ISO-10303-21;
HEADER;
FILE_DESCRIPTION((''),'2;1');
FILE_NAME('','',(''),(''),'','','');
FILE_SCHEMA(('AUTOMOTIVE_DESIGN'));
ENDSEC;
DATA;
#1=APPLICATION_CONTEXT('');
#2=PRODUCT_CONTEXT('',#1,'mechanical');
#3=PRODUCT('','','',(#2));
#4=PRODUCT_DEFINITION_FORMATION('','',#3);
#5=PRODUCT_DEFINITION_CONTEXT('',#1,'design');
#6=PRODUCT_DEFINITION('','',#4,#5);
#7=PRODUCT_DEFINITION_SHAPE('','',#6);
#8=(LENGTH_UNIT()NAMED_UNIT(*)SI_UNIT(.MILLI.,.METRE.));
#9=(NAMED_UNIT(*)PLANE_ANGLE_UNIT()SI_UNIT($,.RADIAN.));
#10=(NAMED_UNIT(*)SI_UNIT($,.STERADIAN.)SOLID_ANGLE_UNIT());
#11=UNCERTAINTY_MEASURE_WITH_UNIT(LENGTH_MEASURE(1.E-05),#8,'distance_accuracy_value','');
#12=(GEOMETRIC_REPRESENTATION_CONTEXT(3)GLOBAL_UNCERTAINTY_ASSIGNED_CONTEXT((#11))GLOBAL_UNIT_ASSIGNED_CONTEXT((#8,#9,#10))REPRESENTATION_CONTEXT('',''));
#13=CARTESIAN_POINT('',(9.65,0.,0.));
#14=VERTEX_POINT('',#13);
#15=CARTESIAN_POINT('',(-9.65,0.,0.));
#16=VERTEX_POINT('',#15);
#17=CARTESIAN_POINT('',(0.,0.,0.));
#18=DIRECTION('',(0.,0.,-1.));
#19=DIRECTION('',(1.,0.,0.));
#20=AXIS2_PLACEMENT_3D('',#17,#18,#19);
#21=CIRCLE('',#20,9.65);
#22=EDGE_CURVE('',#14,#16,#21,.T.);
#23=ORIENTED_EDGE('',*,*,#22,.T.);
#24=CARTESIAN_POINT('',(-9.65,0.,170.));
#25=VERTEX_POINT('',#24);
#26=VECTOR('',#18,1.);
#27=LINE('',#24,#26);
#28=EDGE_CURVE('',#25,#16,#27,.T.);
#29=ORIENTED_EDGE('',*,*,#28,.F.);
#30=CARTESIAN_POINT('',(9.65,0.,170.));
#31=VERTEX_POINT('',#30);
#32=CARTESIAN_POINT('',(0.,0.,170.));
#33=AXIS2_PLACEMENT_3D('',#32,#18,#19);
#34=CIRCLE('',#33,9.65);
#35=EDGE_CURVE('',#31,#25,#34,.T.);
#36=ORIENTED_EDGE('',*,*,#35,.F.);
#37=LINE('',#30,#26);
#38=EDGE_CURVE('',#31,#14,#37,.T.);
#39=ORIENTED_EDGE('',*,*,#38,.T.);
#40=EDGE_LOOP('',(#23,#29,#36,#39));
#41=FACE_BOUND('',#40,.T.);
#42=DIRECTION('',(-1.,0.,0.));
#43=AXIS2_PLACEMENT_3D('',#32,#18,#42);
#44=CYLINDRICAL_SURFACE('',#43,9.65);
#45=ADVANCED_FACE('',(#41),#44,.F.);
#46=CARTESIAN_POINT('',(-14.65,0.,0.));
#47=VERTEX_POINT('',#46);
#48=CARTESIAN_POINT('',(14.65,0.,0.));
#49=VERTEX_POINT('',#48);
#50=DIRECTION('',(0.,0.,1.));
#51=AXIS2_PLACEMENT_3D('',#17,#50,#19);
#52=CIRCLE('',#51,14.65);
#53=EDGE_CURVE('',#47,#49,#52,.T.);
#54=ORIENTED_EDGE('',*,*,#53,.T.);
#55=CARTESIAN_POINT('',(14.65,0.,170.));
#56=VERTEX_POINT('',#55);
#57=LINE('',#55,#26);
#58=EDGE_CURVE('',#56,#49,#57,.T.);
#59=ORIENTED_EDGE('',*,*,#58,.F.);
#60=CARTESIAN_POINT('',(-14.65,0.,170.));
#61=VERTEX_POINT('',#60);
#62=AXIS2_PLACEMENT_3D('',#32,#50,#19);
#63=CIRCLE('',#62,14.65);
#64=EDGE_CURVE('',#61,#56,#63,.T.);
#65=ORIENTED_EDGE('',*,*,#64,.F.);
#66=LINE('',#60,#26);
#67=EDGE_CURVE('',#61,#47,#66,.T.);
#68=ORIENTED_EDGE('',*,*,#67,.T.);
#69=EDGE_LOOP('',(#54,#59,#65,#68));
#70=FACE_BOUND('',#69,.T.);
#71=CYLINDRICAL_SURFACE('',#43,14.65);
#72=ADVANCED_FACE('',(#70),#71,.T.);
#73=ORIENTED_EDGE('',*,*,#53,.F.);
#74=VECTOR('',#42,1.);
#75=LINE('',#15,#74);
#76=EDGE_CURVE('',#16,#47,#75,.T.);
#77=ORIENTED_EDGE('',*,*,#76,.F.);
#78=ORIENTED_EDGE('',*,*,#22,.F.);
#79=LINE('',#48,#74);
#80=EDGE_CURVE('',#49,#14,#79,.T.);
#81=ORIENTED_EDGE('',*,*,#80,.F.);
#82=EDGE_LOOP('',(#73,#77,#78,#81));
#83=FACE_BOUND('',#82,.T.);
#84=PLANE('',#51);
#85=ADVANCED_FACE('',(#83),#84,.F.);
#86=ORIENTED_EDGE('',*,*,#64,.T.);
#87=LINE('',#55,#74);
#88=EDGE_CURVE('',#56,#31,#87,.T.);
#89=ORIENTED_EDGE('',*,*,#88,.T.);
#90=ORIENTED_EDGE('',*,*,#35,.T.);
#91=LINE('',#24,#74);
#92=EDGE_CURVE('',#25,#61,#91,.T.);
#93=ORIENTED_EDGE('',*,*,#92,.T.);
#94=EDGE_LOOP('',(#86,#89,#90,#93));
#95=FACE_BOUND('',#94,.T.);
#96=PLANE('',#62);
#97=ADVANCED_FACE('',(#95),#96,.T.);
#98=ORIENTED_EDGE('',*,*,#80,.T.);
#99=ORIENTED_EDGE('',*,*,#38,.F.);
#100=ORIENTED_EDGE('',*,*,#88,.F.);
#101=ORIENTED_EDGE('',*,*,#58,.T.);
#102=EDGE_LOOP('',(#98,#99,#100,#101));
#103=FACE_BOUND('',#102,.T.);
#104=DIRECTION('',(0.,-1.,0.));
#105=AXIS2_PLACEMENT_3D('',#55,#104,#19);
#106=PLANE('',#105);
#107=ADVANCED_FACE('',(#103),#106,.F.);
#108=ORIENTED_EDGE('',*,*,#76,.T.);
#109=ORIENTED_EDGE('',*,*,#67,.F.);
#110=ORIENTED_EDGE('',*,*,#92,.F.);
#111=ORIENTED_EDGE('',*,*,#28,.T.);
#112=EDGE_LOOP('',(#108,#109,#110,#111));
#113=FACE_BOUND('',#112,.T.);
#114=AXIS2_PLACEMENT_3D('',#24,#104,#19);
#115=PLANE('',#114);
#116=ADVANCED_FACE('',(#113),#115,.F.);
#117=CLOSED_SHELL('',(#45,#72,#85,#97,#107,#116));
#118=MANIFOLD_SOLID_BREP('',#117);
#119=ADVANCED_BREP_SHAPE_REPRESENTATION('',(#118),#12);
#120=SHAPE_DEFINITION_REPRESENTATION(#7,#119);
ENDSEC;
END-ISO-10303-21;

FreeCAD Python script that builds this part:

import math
import FreeCAD as App
import Part
import Sketcher
Q = App.Units.Quantity

doc = App.newDocument("Part")
params = doc.addObject("Spreadsheet::Sheet", "Params")
for row, (alias, value) in enumerate([
    ("sketch1_width", "5 mm"),
    ("sketch1_radius", "9.65 mm"),
    ("pad1_length", "170 mm"),
], start=1):
    params.set(f"A{row}", alias)
    params.set(f"B{row}", "=" + value)
    params.setAlias(f"B{row}", alias)

body = doc.addObject("PartDesign::Body", "Body")

# Sketch on XY plane
sketch1 = body.newObject("Sketcher::SketchObject", "Sketch")
sketch1.AttachmentSupport = (doc.getObject("XY_Plane"), [""])
sketch1.MapMode = "FlatFace"
sketch1.addGeometry(Part.LineSegment(App.Vector(15, 0, 0), App.Vector(10, 0, 0)), False)
sketch1.addGeometry(Part.ArcOfCircle(Part.Circle(App.Vector(0, 0, 0), App.Vector(0, 0, 1), 10), math.radians(180), math.radians(360)), False)
sketch1.addGeometry(Part.LineSegment(App.Vector(-10, 0, 0), App.Vector(-15, 0, 0)), False)
sketch1.addGeometry(Part.ArcOfCircle(Part.Circle(App.Vector(0, 0, 0), App.Vector(0, 0, 1), 15), math.radians(180), math.radians(360)), False)
sketch1.addConstraint(Sketcher.Constraint("Coincident", 0, 2, 1, 2))
sketch1.addConstraint(Sketcher.Constraint("Coincident", 1, 1, 2, 1))
sketch1.addConstraint(Sketcher.Constraint("Coincident", 2, 2, 3, 1))
sketch1.addConstraint(Sketcher.Constraint("Coincident", 3, 2, 0, 1))
sketch1.addConstraint(Sketcher.Constraint("Horizontal", 0))
sketch1.addConstraint(Sketcher.Constraint("Horizontal", 2))
sketch1.addConstraint(Sketcher.Constraint("Coincident", 1, 3, -1, 1))
sketch1.addConstraint(Sketcher.Constraint("Coincident", 3, 3, -1, 1))
sketch1.addConstraint(Sketcher.Constraint("PointOnObject", 0, 2, -1))
sketch1.addConstraint(Sketcher.Constraint("PointOnObject", 1, 1, -1))
sketch1.addConstraint(Sketcher.Constraint("DistanceX", 0, 2, 0, 1, Q("5 mm")))
sketch1.addConstraint(Sketcher.Constraint("Radius", 1, Q("9.65 mm")))
sketch1.setExpression("Constraints[10]", "Params.sketch1_width")
sketch1.setExpression("Constraints[11]", "Params.sketch1_radius")
pad1 = body.newObject("PartDesign::Pad", "Pad")
pad1.Profile = sketch1
pad1.setExpression("Length", "Params.pad1_length")

doc.recompute()
